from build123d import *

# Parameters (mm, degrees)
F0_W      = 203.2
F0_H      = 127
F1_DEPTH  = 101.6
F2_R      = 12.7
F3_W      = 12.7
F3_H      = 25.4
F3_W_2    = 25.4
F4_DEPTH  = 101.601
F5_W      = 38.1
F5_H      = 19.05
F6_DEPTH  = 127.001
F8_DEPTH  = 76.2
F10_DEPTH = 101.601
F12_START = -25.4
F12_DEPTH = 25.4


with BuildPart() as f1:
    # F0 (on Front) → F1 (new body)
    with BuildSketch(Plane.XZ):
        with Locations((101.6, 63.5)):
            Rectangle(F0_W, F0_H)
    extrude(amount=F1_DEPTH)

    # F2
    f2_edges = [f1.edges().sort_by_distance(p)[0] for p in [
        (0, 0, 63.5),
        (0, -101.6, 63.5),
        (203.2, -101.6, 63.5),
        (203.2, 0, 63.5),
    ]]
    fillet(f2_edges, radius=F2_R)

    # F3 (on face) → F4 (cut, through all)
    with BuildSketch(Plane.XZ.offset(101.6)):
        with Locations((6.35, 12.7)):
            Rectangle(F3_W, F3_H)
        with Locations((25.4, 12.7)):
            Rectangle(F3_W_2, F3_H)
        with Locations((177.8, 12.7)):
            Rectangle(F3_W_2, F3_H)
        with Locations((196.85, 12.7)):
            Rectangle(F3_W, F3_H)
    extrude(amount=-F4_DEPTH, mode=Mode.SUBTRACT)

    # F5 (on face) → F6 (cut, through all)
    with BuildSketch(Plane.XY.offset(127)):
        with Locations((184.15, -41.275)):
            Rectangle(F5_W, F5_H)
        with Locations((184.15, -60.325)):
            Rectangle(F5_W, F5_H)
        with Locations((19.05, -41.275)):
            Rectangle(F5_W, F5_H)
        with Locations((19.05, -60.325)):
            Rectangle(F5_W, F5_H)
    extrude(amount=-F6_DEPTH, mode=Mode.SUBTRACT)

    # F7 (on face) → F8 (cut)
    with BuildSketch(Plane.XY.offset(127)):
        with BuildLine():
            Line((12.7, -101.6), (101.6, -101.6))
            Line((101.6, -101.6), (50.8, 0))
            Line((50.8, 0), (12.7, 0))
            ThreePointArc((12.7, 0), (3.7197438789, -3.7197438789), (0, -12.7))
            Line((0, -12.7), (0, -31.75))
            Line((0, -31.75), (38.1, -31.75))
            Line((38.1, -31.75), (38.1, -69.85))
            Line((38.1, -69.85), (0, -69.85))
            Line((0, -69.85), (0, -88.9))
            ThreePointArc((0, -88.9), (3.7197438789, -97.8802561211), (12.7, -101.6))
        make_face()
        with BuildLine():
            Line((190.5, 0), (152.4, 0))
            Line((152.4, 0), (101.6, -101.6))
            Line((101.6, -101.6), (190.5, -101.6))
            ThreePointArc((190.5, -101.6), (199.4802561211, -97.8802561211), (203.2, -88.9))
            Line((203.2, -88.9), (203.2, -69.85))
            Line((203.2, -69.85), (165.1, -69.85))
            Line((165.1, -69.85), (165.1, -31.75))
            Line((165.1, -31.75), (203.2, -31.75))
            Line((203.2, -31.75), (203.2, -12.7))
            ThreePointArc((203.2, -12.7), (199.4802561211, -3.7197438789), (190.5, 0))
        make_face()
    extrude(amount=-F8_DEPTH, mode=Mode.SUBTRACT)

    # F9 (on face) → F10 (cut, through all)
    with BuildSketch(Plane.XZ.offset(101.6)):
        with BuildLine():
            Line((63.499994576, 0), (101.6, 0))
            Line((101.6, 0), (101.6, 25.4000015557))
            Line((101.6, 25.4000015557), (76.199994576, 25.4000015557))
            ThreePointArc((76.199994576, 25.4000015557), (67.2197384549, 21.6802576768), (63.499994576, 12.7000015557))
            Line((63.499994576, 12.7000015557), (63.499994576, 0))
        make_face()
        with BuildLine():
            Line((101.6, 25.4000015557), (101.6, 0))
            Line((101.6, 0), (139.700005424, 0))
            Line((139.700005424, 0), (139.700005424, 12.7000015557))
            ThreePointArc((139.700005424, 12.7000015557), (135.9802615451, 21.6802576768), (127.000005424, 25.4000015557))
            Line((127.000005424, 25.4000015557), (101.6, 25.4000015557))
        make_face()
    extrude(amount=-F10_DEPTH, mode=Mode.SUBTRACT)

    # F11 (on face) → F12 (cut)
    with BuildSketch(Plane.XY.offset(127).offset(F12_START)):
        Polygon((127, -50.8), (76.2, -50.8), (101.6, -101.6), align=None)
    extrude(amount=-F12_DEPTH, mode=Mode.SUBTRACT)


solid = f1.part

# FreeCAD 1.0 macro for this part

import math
import FreeCAD as App
import Part
import Sketcher

V = App.Vector
Q = App.Units.Quantity


def edges_at(feature, points):
    """Names of the edges that pass closest to the given points."""
    edges = feature.Shape.Edges
    near = lambda p: min(range(len(edges)), key=lambda i: edges[i].distToShape(Part.Vertex(*p))[0])
    return sorted({f"Edge{near(p) + 1}" for p in points})

doc = App.newDocument("Part")
body = doc.addObject("PartDesign::Body", "Body")

# Sketch on XZ plane
sketch1 = body.newObject("Sketcher::SketchObject", "Sketch")
sketch1.AttachmentSupport = (doc.getObject("XZ_Plane"), [""])
sketch1.MapMode = "FlatFace"
sketch1.addGeometry(Part.LineSegment(V(0, 127, 0), V(0, 0, 0)), False)
sketch1.addGeometry(Part.LineSegment(V(0, 0, 0), V(203, 0, 0)), False)
sketch1.addGeometry(Part.LineSegment(V(203, 0, 0), V(203, 127, 0)), False)
sketch1.addGeometry(Part.LineSegment(V(203, 127, 0), V(0, 127, 0)), False)
sketch1.addConstraint(Sketcher.Constraint("Coincident", 0, 2, 1, 1))
sketch1.addConstraint(Sketcher.Constraint("Coincident", 1, 2, 2, 1))
sketch1.addConstraint(Sketcher.Constraint("Coincident", 2, 2, 3, 1))
sketch1.addConstraint(Sketcher.Constraint("Coincident", 3, 2, 0, 1))
sketch1.addConstraint(Sketcher.Constraint("Vertical", 0))
sketch1.addConstraint(Sketcher.Constraint("Horizontal", 1))
sketch1.addConstraint(Sketcher.Constraint("Vertical", 2))
sketch1.addConstraint(Sketcher.Constraint("Horizontal", 3))
sketch1.addConstraint(Sketcher.Constraint("Coincident", 0, 2, -1, 1))
sketch1.addConstraint(Sketcher.Constraint("DistanceX", 1, 1, 1, 2, Q("8 in")))
sketch1.addConstraint(Sketcher.Constraint("DistanceY", 0, 2, 0, 1, Q("5 in")))
pad1 = body.newObject("PartDesign::Pad", "Pad")
pad1.Profile = sketch1
pad1.Length = Q("4 in")
doc.recompute()

fillet = body.newObject("PartDesign::Fillet", "Fillet")
fillet.Base = (pad1, edges_at(pad1, [
    (0, 0, 63.5),
    (0, -101.6, 63.5),
    (203.2, -101.6, 63.5),
    (203.2, 0, 63.5),
]))
fillet.Radius = Q("0.5 in")

# Sketch on XZ plane
sketch2 = body.newObject("Sketcher::SketchObject", "Sketch001")
sketch2.AttachmentSupport = (doc.getObject("XZ_Plane"), [""])
sketch2.MapMode = "FlatFace"
sketch2.AttachmentOffset = App.Placement(V(0, 0, 4 * 25.4), App.Rotation())
sketch2.addGeometry(Part.LineSegment(V(0, 25, 0), V(0, 0, 0)), False)
sketch2.addGeometry(Part.LineSegment(V(0, 0, 0), V(38, 0, 0)), False)
sketch2.addGeometry(Part.LineSegment(V(38, 0, 0), V(38, 25, 0)), False)
sketch2.addGeometry(Part.LineSegment(V(38, 25, 0), V(0, 25, 0)), False)
sketch2.addGeometry(Part.LineSegment(V(165, 25, 0), V(165, 0, 0)), False)
sketch2.addGeometry(Part.LineSegment(V(165, 0, 0), V(203, 0, 0)), False)
sketch2.addGeometry(Part.LineSegment(V(203, 0, 0), V(203, 25, 0)), False)
sketch2.addGeometry(Part.LineSegment(V(203, 25, 0), V(165, 25, 0)), False)
sketch2.addConstraint(Sketcher.Constraint("Coincident", 0, 2, 1, 1))
sketch2.addConstraint(Sketcher.Constraint("Coincident", 1, 2, 2, 1))
sketch2.addConstraint(Sketcher.Constraint("Coincident", 2, 2, 3, 1))
sketch2.addConstraint(Sketcher.Constraint("Coincident", 3, 2, 0, 1))
sketch2.addConstraint(Sketcher.Constraint("Coincident", 4, 2, 5, 1))
sketch2.addConstraint(Sketcher.Constraint("Coincident", 5, 2, 6, 1))
sketch2.addConstraint(Sketcher.Constraint("Coincident", 6, 2, 7, 1))
sketch2.addConstraint(Sketcher.Constraint("Coincident", 7, 2, 4, 1))
sketch2.addConstraint(Sketcher.Constraint("Vertical", 0))
sketch2.addConstraint(Sketcher.Constraint("Horizontal", 1))
sketch2.addConstraint(Sketcher.Constraint("Vertical", 2))
sketch2.addConstraint(Sketcher.Constraint("Horizontal", 3))
sketch2.addConstraint(Sketcher.Constraint("Vertical", 4))
sketch2.addConstraint(Sketcher.Constraint("Horizontal", 5))
sketch2.addConstraint(Sketcher.Constraint("Vertical", 6))
sketch2.addConstraint(Sketcher.Constraint("Horizontal", 7))
sketch2.addConstraint(Sketcher.Constraint("Coincident", 0, 2, -1, 1))
sketch2.addConstraint(Sketcher.Constraint("PointOnObject", 4, 2, -1))
sketch2.addConstraint(Sketcher.Constraint("Horizontal", 3, 2, 6, 2))
sketch2.addConstraint(Sketcher.Constraint("Equal", 3, 5))
sketch2.addConstraint(Sketcher.Constraint("DistanceY", 0, 2, 0, 1, Q("1 in")))
sketch2.addConstraint(Sketcher.Constraint("DistanceX", 1, 1, 1, 2, Q("1.5 in")))
sketch2.addConstraint(Sketcher.Constraint("DistanceX", -1, 1, 5, 2, Q("8 in")))
pocket1 = body.newObject("PartDesign::Pocket", "Pocket")
pocket1.Profile = sketch2
pocket1.Type = "ThroughAll"

# Sketch on XY plane
sketch3 = body.newObject("Sketcher::SketchObject", "Sketch002")
sketch3.AttachmentSupport = (doc.getObject("XY_Plane"), [""])
sketch3.MapMode = "FlatFace"
sketch3.AttachmentOffset = App.Placement(V(0, 0, 5 * 25.4), App.Rotation())
sketch3.addGeometry(Part.LineSegment(V(165, -32, 0), V(165, -70, 0)), False)
sketch3.addGeometry(Part.LineSegment(V(165, -70, 0), V(203, -70, 0)), False)
sketch3.addGeometry(Part.LineSegment(V(203, -70, 0), V(203, -32, 0)), False)
sketch3.addGeometry(Part.LineSegment(V(203, -32, 0), V(165, -32, 0)), False)
sketch3.addGeometry(Part.LineSegment(V(0, -32, 0), V(0, -70, 0)), False)
sketch3.addGeometry(Part.LineSegment(V(0, -70, 0), V(38, -70, 0)), False)
sketch3.addGeometry(Part.LineSegment(V(38, -70, 0), V(38, -32, 0)), False)
sketch3.addGeometry(Part.LineSegment(V(38, -32, 0), V(0, -32, 0)), False)
sketch3.addConstraint(Sketcher.Constraint("Coincident", 0, 2, 1, 1))
sketch3.addConstraint(Sketcher.Constraint("Coincident", 1, 2, 2, 1))
sketch3.addConstraint(Sketcher.Constraint("Coincident", 2, 2, 3, 1))
sketch3.addConstraint(Sketcher.Constraint("Coincident", 3, 2, 0, 1))
sketch3.addConstraint(Sketcher.Constraint("Coincident", 4, 2, 5, 1))
sketch3.addConstraint(Sketcher.Constraint("Coincident", 5, 2, 6, 1))
sketch3.addConstraint(Sketcher.Constraint("Coincident", 6, 2, 7, 1))
sketch3.addConstraint(Sketcher.Constraint("Coincident", 7, 2, 4, 1))
sketch3.addConstraint(Sketcher.Constraint("Vertical", 0))
sketch3.addConstraint(Sketcher.Constraint("Horizontal", 1))
sketch3.addConstraint(Sketcher.Constraint("Vertical", 2))
sketch3.addConstraint(Sketcher.Constraint("Horizontal", 3))
sketch3.addConstraint(Sketcher.Constraint("Vertical", 4))
sketch3.addConstraint(Sketcher.Constraint("Horizontal", 5))
sketch3.addConstraint(Sketcher.Constraint("Vertical", 6))
sketch3.addConstraint(Sketcher.Constraint("Horizontal", 7))
sketch3.addConstraint(Sketcher.Constraint("PointOnObject", 4, 2, -2))
sketch3.addConstraint(Sketcher.Constraint("Horizontal", 1, 2, 4, 2))
sketch3.addConstraint(Sketcher.Constraint("Horizontal", 3, 2, 6, 2))
sketch3.addConstraint(Sketcher.Constraint("Equal", 3, 5))
sketch3.addConstraint(Sketcher.Constraint("Equal", 7, 0))
sketch3.addConstraint(Sketcher.Constraint("DistanceX", 1, 1, 1, 2, Q("1.5 in")))
sketch3.addConstraint(Sketcher.Constraint("DistanceX", -1, 1, 1, 2, Q("8 in")))
sketch3.addConstraint(Sketcher.Constraint("DistanceY", 0, 2, -1, 1, Q("2.75 in")))
pocket2 = body.newObject("PartDesign::Pocket", "Pocket001")
pocket2.Profile = sketch3
pocket2.Type = "ThroughAll"

# Sketch on XY plane
sketch4 = body.newObject("Sketcher::SketchObject", "Sketch003")
sketch4.AttachmentSupport = (doc.getObject("XY_Plane"), [""])
sketch4.MapMode = "FlatFace"
sketch4.AttachmentOffset = App.Placement(V(0, 0, 5 * 25.4), App.Rotation())
sketch4.addGeometry(Part.LineSegment(V(13, -102, 0), V(102, -102, 0)), False)
sketch4.addGeometry(Part.LineSegment(V(102, -102, 0), V(51, 0, 0)), False)
sketch4.addGeometry(Part.LineSegment(V(51, 0, 0), V(13, 0, 0)), False)
sketch4.addGeometry(Part.ArcOfCircle(Part.Circle(V(13, -13, 0), V(0, 0, 1), 13), math.radians(90), math.radians(180)), False)
sketch4.addGeometry(Part.LineSegment(V(0, -13, 0), V(0, -32, 0)), False)
sketch4.addGeometry(Part.LineSegment(V(0, -32, 0), V(38, -32, 0)), False)
sketch4.addGeometry(Part.LineSegment(V(38, -32, 0), V(38, -70, 0)), False)
sketch4.addGeometry(Part.LineSegment(V(38, -70, 0), V(0, -70, 0)), False)
sketch4.addGeometry(Part.LineSegment(V(0, -70, 0), V(0, -89, 0)), False)
sketch4.addGeometry(Part.ArcOfCircle(Part.Circle(V(13, -89, 0), V(0, 0, 1), 13), math.radians(180), math.radians(270)), False)
sketch4.addGeometry(Part.LineSegment(V(190, 0, 0), V(152, 0, 0)), False)
sketch4.addGeometry(Part.LineSegment(V(152, 0, 0), V(102, -102, 0)), False)
sketch4.addGeometry(Part.LineSegment(V(102, -102, 0), V(190, -102, 0)), False)
sketch4.addGeometry(Part.ArcOfCircle(Part.Circle(V(190, -89, 0), V(0, 0, 1), 13), math.radians(-90), math.radians(0)), False)
sketch4.addGeometry(Part.LineSegment(V(203, -89, 0), V(203, -70, 0)), False)
sketch4.addGeometry(Part.LineSegment(V(203, -70, 0), V(165, -70, 0)), False)
sketch4.addGeometry(Part.LineSegment(V(165, -70, 0), V(165, -32, 0)), False)
sketch4.addGeometry(Part.LineSegment(V(165, -32, 0), V(203, -32, 0)), False)
sketch4.addGeometry(Part.LineSegment(V(203, -32, 0), V(203, -13, 0)), False)
sketch4.addGeometry(Part.ArcOfCircle(Part.Circle(V(190, -13, 0), V(0, 0, 1), 13), math.radians(0), math.radians(90)), False)
sketch4.addConstraint(Sketcher.Constraint("Coincident", 0, 2, 1, 1))
sketch4.addConstraint(Sketcher.Constraint("Coincident", 1, 2, 2, 1))
sketch4.addConstraint(Sketcher.Constraint("Tangent", 2, 2, 3, 1))
sketch4.addConstraint(Sketcher.Constraint("Tangent", 3, 2, 4, 1))
sketch4.addConstraint(Sketcher.Constraint("Coincident", 4, 2, 5, 1))
sketch4.addConstraint(Sketcher.Constraint("Coincident", 5, 2, 6, 1))
sketch4.addConstraint(Sketcher.Constraint("Coincident", 6, 2, 7, 1))
sketch4.addConstraint(Sketcher.Constraint("Coincident", 7, 2, 8, 1))
sketch4.addConstraint(Sketcher.Constraint("Tangent", 8, 2, 9, 1))
sketch4.addConstraint(Sketcher.Constraint("Tangent", 9, 2, 0, 1))
sketch4.addConstraint(Sketcher.Constraint("Coincident", 10, 2, 11, 1))
sketch4.addConstraint(Sketcher.Constraint("Coincident", 11, 2, 12, 1))
sketch4.addConstraint(Sketcher.Constraint("Tangent", 12, 2, 13, 1))
sketch4.addConstraint(Sketcher.Constraint("Tangent", 13, 2, 14, 1))
sketch4.addConstraint(Sketcher.Constraint("Coincident", 14, 2, 15, 1))
sketch4.addConstraint(Sketcher.Constraint("Coincident", 15, 2, 16, 1))
sketch4.addConstraint(Sketcher.Constraint("Coincident", 16, 2, 17, 1))
sketch4.addConstraint(Sketcher.Constraint("Coincident", 17, 2, 18, 1))
sketch4.addConstraint(Sketcher.Constraint("Tangent", 18, 2, 19, 1))
sketch4.addConstraint(Sketcher.Constraint("Tangent", 19, 2, 10, 1))
sketch4.addConstraint(Sketcher.Constraint("Horizontal", 0))
sketch4.addConstraint(Sketcher.Constraint("Horizontal", 2))
sketch4.addConstraint(Sketcher.Constraint("Vertical", 4))
sketch4.addConstraint(Sketcher.Constraint("Horizontal", 5))
sketch4.addConstraint(Sketcher.Constraint("Vertical", 6))
sketch4.addConstraint(Sketcher.Constraint("Horizontal", 7))
sketch4.addConstraint(Sketcher.Constraint("Vertical", 8))
sketch4.addConstraint(Sketcher.Constraint("Horizontal", 10))
sketch4.addConstraint(Sketcher.Constraint("Horizontal", 12))
sketch4.addConstraint(Sketcher.Constraint("Vertical", 14))
sketch4.addConstraint(Sketcher.Constraint("Horizontal", 15))
sketch4.addConstraint(Sketcher.Constraint("Vertical", 16))
sketch4.addConstraint(Sketcher.Constraint("Horizontal", 17))
sketch4.addConstraint(Sketcher.Constraint("Vertical", 18))
sketch4.addConstraint(Sketcher.Constraint("Coincident", 11, 2, 0, 2))
sketch4.addConstraint(Sketcher.Constraint("Equal", 3, 9))
sketch4.addConstraint(Sketcher.Constraint("Equal", 9, 13))
sketch4.addConstraint(Sketcher.Constraint("Equal", 13, 19))
sketch4.addConstraint(Sketcher.Constraint("PointOnObject", 1, 2, -1))
sketch4.addConstraint(Sketcher.Constraint("PointOnObject", 3, 2, -2))
sketch4.addConstraint(Sketcher.Constraint("PointOnObject", 7, 2, -2))
sketch4.addConstraint(Sketcher.Constraint("PointOnObject", 10, 2, -1))
sketch4.addConstraint(Sketcher.Constraint("Horizontal", 7, 2, 14, 2))
sketch4.addConstraint(Sketcher.Constraint("Horizontal", 5, 2, 16, 2))
sketch4.addConstraint(Sketcher.Constraint("Vertical", 13, 3, 19, 3))
sketch4.addConstraint(Sketcher.Constraint("Equal", 2, 5))
sketch4.addConstraint(Sketcher.Constraint("Equal", 7, 10))
sketch4.addConstraint(Sketcher.Constraint("Equal", 0, 12))
sketch4.addConstraint(Sketcher.Constraint("Equal", 10, 15))
sketch4.addConstraint(Sketcher.Constraint("Equal", 17, 6))
sketch4.addConstraint(Sketcher.Constraint("Equal", 4, 8))
sketch4.addConstraint(Sketcher.Constraint("Radius", 3, Q("0.5 in")))
sketch4.addConstraint(Sketcher.Constraint("DistanceX", 0, 1, 0, 2, Q("3.5 in")))
sketch4.addConstraint(Sketcher.Constraint("DistanceX", 2, 2, 2, 1, Q("1.5 in")))
sketch4.addConstraint(Sketcher.Constraint("DistanceY", 0, 2, -1, 1, Q("4 in")))
pocket3 = body.newObject("PartDesign::Pocket", "Pocket002")
pocket3.Profile = sketch4
pocket3.Length = Q("3 in")

# Sketch on XZ plane
sketch5 = body.newObject("Sketcher::SketchObject", "Sketch004")
sketch5.AttachmentSupport = (doc.getObject("XZ_Plane"), [""])
sketch5.MapMode = "FlatFace"
sketch5.AttachmentOffset = App.Placement(V(0, 0, 4 * 25.4), App.Rotation())
sketch5.addGeometry(Part.LineSegment(V(63, 0, 0), V(140, 0, 0)), False)
sketch5.addGeometry(Part.LineSegment(V(140, 0, 0), V(140, 13, 0)), False)
sketch5.addGeometry(Part.ArcOfCircle(Part.Circle(V(127, 13, 0), V(0, 0, 1), 13), math.radians(0), math.radians(90)), False)
sketch5.addGeometry(Part.LineSegment(V(127, 25, 0), V(76, 25, 0)), False)
sketch5.addGeometry(Part.ArcOfCircle(Part.Circle(V(76, 13, 0), V(0, 0, 1), 13), math.radians(90), math.radians(180)), False)
sketch5.addGeometry(Part.LineSegment(V(63, 13, 0), V(63, 0, 0)), False)
sketch5.addConstraint(Sketcher.Constraint("Coincident", 0, 2, 1, 1))
sketch5.addConstraint(Sketcher.Constraint("Tangent", 1, 2, 2, 1))
sketch5.addConstraint(Sketcher.Constraint("Tangent", 2, 2, 3, 1))
sketch5.addConstraint(Sketcher.Constraint("Tangent", 3, 2, 4, 1))
sketch5.addConstraint(Sketcher.Constraint("Tangent", 4, 2, 5, 1))
sketch5.addConstraint(Sketcher.Constraint("Coincident", 5, 2, 0, 1))
sketch5.addConstraint(Sketcher.Constraint("Horizontal", 0))
sketch5.addConstraint(Sketcher.Constraint("Vertical", 1))
sketch5.addConstraint(Sketcher.Constraint("Horizontal", 3))
sketch5.addConstraint(Sketcher.Constraint("Vertical", 5))
sketch5.addConstraint(Sketcher.Constraint("Equal", 2, 4))
sketch5.addConstraint(Sketcher.Constraint("PointOnObject", 0, 2, -1))
sketch5.addConstraint(Sketcher.Constraint("Radius", 2, Q("0.5 in")))
sketch5.addConstraint(Sketcher.Constraint("DistanceY", 1, 1, 1, 2, Q("0.5000001 in")))
sketch5.addConstraint(Sketcher.Constraint("DistanceX", 0, 1, 0, 2, Q("76.200011 mm")))
sketch5.addConstraint(Sketcher.Constraint("DistanceX", -1, 1, 2, 3, Q("127.000005 mm")))
pocket4 = body.newObject("PartDesign::Pocket", "Pocket003")
pocket4.Profile = sketch5
pocket4.Type = "ThroughAll"

# Sketch on XY plane
sketch6 = body.newObject("Sketcher::SketchObject", "Sketch005")
sketch6.AttachmentSupport = (doc.getObject("XY_Plane"), [""])
sketch6.MapMode = "FlatFace"
sketch6.AttachmentOffset = App.Placement(V(0, 0, 4 * 25.4), App.Rotation())
sketch6.addGeometry(Part.LineSegment(V(127, -51, 0), V(76, -51, 0)), False)
sketch6.addGeometry(Part.LineSegment(V(76, -51, 0), V(102, -102, 0)), False)
sketch6.addGeometry(Part.LineSegment(V(102, -102, 0), V(127, -51, 0)), False)
sketch6.addConstraint(Sketcher.Constraint("Coincident", 0, 2, 1, 1))
sketch6.addConstraint(Sketcher.Constraint("Coincident", 1, 2, 2, 1))
sketch6.addConstraint(Sketcher.Constraint("Coincident", 2, 2, 0, 1))
sketch6.addConstraint(Sketcher.Constraint("Horizontal", 0))
sketch6.addConstraint(Sketcher.Constraint("Equal", 1, 2))
sketch6.addConstraint(Sketcher.Constraint("DistanceX", 0, 2, 0, 1, Q("2 in")))
sketch6.addConstraint(Sketcher.Constraint("DistanceX", -1, 1, 0, 2, Q("3 in")))
sketch6.addConstraint(Sketcher.Constraint("DistanceY", 0, 2, -1, 1, Q("2 in")))
sketch6.addConstraint(Sketcher.Constraint("DistanceY", 1, 2, -1, 1, Q("4 in")))
pocket5 = body.newObject("PartDesign::Pocket", "Pocket004")
pocket5.Profile = sketch6
pocket5.Length = Q("1 in")

doc.recompute()
